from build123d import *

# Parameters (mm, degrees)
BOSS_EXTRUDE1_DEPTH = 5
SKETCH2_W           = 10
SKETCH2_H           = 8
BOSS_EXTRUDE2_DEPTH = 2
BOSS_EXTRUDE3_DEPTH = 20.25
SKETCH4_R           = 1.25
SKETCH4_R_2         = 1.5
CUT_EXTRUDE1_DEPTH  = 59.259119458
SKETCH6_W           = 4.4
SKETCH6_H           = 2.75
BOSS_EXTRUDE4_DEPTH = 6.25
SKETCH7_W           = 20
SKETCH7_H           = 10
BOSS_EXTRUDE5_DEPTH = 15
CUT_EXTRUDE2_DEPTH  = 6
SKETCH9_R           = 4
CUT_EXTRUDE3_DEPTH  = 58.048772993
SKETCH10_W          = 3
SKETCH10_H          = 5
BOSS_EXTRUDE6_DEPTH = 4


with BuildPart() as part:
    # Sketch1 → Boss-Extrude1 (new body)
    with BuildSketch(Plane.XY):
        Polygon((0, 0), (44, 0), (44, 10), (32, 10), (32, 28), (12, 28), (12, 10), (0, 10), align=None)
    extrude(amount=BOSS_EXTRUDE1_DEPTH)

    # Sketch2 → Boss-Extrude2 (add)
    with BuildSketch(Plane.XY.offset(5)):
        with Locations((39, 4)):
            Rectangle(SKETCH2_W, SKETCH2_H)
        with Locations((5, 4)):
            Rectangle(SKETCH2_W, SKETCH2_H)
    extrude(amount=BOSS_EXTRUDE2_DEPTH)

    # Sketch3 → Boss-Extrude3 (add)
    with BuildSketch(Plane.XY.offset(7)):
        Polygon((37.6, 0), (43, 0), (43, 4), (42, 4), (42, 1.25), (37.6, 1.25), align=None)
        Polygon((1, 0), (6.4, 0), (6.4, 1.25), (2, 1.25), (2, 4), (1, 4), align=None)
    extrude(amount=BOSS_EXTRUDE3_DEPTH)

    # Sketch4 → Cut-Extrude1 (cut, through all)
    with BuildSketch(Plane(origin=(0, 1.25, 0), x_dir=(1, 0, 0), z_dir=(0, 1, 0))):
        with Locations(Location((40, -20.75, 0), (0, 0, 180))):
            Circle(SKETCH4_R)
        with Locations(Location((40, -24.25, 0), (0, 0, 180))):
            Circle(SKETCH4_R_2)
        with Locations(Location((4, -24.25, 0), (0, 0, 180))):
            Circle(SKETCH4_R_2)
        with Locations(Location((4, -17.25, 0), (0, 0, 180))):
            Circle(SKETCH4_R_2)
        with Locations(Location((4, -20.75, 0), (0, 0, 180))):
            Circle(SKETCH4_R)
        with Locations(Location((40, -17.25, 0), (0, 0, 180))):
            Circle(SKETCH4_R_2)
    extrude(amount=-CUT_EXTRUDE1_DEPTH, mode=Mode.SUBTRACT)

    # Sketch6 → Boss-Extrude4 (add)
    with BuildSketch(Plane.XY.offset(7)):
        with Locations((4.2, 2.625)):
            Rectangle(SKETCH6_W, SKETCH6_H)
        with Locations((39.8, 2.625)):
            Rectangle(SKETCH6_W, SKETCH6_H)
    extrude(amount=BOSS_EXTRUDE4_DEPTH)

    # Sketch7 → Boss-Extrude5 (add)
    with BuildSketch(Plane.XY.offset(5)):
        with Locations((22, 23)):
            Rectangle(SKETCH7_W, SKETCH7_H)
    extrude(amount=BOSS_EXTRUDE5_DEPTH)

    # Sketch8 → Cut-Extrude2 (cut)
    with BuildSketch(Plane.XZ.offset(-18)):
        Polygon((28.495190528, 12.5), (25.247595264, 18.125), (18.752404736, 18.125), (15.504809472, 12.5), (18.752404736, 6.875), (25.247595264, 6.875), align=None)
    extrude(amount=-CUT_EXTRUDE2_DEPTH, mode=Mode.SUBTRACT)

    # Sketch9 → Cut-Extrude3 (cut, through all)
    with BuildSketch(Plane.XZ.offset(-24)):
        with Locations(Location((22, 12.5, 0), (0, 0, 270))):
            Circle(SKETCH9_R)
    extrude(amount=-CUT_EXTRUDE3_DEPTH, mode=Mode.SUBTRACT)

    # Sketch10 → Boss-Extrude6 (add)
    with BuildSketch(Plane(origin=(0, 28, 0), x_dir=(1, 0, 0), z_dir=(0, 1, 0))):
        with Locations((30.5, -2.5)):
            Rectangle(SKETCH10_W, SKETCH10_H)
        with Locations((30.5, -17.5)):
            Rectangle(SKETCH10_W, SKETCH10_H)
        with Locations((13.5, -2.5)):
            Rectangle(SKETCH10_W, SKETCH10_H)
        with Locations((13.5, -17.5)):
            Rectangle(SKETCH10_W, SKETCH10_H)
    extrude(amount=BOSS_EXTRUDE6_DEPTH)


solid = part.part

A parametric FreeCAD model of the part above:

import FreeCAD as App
import Part
import Sketcher
Q = App.Units.Quantity


def add_polygon(sketch, points):
    """Adds a closed chain of lines whose ends are joined by coincident constraints."""
    first, n = sketch.GeometryCount, len(points)
    for a, b in zip(points, points[1:] + points[:1]):
        sketch.addGeometry(Part.LineSegment(App.Vector(*a, 0), App.Vector(*b, 0)), False)
    for i in range(n):
        sketch.addConstraint(Sketcher.Constraint("Coincident", first + i, 2, first + (i + 1) % n, 1))

doc = App.newDocument("Part")
body = doc.addObject("PartDesign::Body", "Body")

# Sketch on XY plane
sketch1 = body.newObject("Sketcher::SketchObject", "Sketch")
sketch1.AttachmentSupport = (doc.getObject("XY_Plane"), [""])
sketch1.MapMode = "FlatFace"
add_polygon(sketch1, [(0, 0), (44, 0), (44, 10), (32, 10), (32, 28), (12, 28), (12, 10), (0, 10)])  # lines 0-7
sketch1.addConstraint(Sketcher.Constraint("Horizontal", 0))
sketch1.addConstraint(Sketcher.Constraint("Vertical", 1))
sketch1.addConstraint(Sketcher.Constraint("Horizontal", 2))
sketch1.addConstraint(Sketcher.Constraint("Vertical", 3))
sketch1.addConstraint(Sketcher.Constraint("Horizontal", 4))
sketch1.addConstraint(Sketcher.Constraint("Vertical", 5))
sketch1.addConstraint(Sketcher.Constraint("Horizontal", 6))
sketch1.addConstraint(Sketcher.Constraint("Vertical", 7))
sketch1.addConstraint(Sketcher.Constraint("Coincident", 7, 2, -1, 1))
sketch1.addConstraint(Sketcher.Constraint("Horizontal", 2, 2, 5, 2))
sketch1.addConstraint(Sketcher.Constraint("Equal", 2, 6))
sketch1.addConstraint(Sketcher.Constraint("DistanceX", 0, 1, 0, 2, 44.0))
sketch1.addConstraint(Sketcher.Constraint("DistanceX", 2, 2, 2, 1, 12.0))
sketch1.addConstraint(Sketcher.Constraint("DistanceY", 1, 1, 1, 2, 10.0))
sketch1.addConstraint(Sketcher.Constraint("DistanceY", 3, 1, 3, 2, 18.0))
pad1 = body.newObject("PartDesign::Pad", "Pad")
pad1.Profile = sketch1
pad1.Length = 5

# Sketch on XY plane
sketch2 = body.newObject("Sketcher::SketchObject", "Sketch001")
sketch2.AttachmentSupport = (doc.getObject("XY_Plane"), [""])
sketch2.MapMode = "FlatFace"
sketch2.AttachmentOffset = App.Placement(App.Vector(0, 0, 5), App.Rotation())
add_polygon(sketch2, [(34, 8), (34, 0), (44, 0), (44, 8)])  # lines 0-3
add_polygon(sketch2, [(0, 8), (0, 0), (10, 0), (10, 8)])  # lines 4-7
sketch2.addConstraint(Sketcher.Constraint("Vertical", 0))
sketch2.addConstraint(Sketcher.Constraint("Horizontal", 1))
sketch2.addConstraint(Sketcher.Constraint("Vertical", 2))
sketch2.addConstraint(Sketcher.Constraint("Horizontal", 3))
sketch2.addConstraint(Sketcher.Constraint("Vertical", 4))
sketch2.addConstraint(Sketcher.Constraint("Horizontal", 5))
sketch2.addConstraint(Sketcher.Constraint("Vertical", 6))
sketch2.addConstraint(Sketcher.Constraint("Horizontal", 7))
sketch2.addConstraint(Sketcher.Constraint("Coincident", 4, 2, -1, 1))
sketch2.addConstraint(Sketcher.Constraint("PointOnObject", 0, 2, -1))
sketch2.addConstraint(Sketcher.Constraint("Horizontal", 3, 2, 6, 2))
sketch2.addConstraint(Sketcher.Constraint("Equal", 3, 5))
sketch2.addConstraint(Sketcher.Constraint("DistanceX", 1, 1, 1, 2, 10.0))
sketch2.addConstraint(Sketcher.Constraint("DistanceY", 0, 2, 0, 1, 8.0))
sketch2.addConstraint(Sketcher.Constraint("DistanceX", -1, 1, 0, 2, 34.0))
pad2 = body.newObject("PartDesign::Pad", "Pad001")
pad2.Profile = sketch2
pad2.Length = 2

# Sketch on XY plane
sketch3 = body.newObject("Sketcher::SketchObject", "Sketch002")
sketch3.AttachmentSupport = (doc.getObject("XY_Plane"), [""])
sketch3.MapMode = "FlatFace"
sketch3.AttachmentOffset = App.Placement(App.Vector(0, 0, 7), App.Rotation())
add_polygon(sketch3, [(37.6, 0), (43, 0), (43, 4), (42, 4), (42, 1.2), (37.6, 1.2)])  # lines 0-5
add_polygon(sketch3, [(1, 0), (6.4, 0), (6.4, 1.2), (2, 1.2), (2, 4), (1, 4)])  # lines 6-11
sketch3.addConstraint(Sketcher.Constraint("Horizontal", 0))
sketch3.addConstraint(Sketcher.Constraint("Vertical", 1))
sketch3.addConstraint(Sketcher.Constraint("Horizontal", 2))
sketch3.addConstraint(Sketcher.Constraint("Vertical", 3))
sketch3.addConstraint(Sketcher.Constraint("Horizontal", 4))
sketch3.addConstraint(Sketcher.Constraint("Vertical", 5))
sketch3.addConstraint(Sketcher.Constraint("Horizontal", 6))
sketch3.addConstraint(Sketcher.Constraint("Vertical", 7))
sketch3.addConstraint(Sketcher.Constraint("Horizontal", 8))
sketch3.addConstraint(Sketcher.Constraint("Vertical", 9))
sketch3.addConstraint(Sketcher.Constraint("Horizontal", 10))
sketch3.addConstraint(Sketcher.Constraint("Vertical", 11))
sketch3.addConstraint(Sketcher.Constraint("PointOnObject", 0, 2, -1))
sketch3.addConstraint(Sketcher.Constraint("PointOnObject", 6, 2, -1))
sketch3.addConstraint(Sketcher.Constraint("Horizontal", 4, 2, 7, 2))
sketch3.addConstraint(Sketcher.Constraint("Horizontal", 2, 2, 9, 2))
sketch3.addConstraint(Sketcher.Constraint("Equal", 0, 6))
sketch3.addConstraint(Sketcher.Constraint("Equal", 4, 8))
sketch3.addConstraint(Sketcher.Constraint("DistanceX", 2, 2, 2, 1, 1.0))
sketch3.addConstraint(Sketcher.Constraint("DistanceY", 1, 1, 1, 2, 4.0))
sketch3.addConstraint(Sketcher.Constraint("DistanceX", 0, 1, 0, 2, 5.4))
sketch3.addConstraint(Sketcher.Constraint("DistanceX", -1, 1, 0, 2, 43.0))
sketch3.addConstraint(Sketcher.Constraint("DistanceX", -1, 1, 8, 2, 2.0))
sketch3.addConstraint(Sketcher.Constraint("DistanceY", 3, 2, 3, 1, 2.75))
pad3 = body.newObject("PartDesign::Pad", "Pad002")
pad3.Profile = sketch3
pad3.Length = 20.25

# Sketch on XZ plane
sketch4 = body.newObject("Sketcher::SketchObject", "Sketch003")
sketch4.AttachmentSupport = (doc.getObject("XZ_Plane"), [""])
sketch4.MapMode = "FlatFace"
sketch4.AttachmentOffset = App.Placement(App.Vector(0, 0, -1.25), App.Rotation())
sketch4.addGeometry(Part.Circle(App.Vector(40, 20.8, 0), App.Vector(0, 0, 1), 1.2), False)
sketch4.addGeometry(Part.Circle(App.Vector(40, 24.2, 0), App.Vector(0, 0, 1), 1.5), False)
sketch4.addGeometry(Part.Circle(App.Vector(4, 24.2, 0), App.Vector(0, 0, 1), 1.5), False)
sketch4.addGeometry(Part.Circle(App.Vector(4, 17.2, 0), App.Vector(0, 0, 1), 1.5), False)
sketch4.addGeometry(Part.Circle(App.Vector(4, 20.8, 0), App.Vector(0, 0, 1), 1.2), False)
sketch4.addGeometry(Part.Circle(App.Vector(40, 17.2, 0), App.Vector(0, 0, 1), 1.5), False)
sketch4.addConstraint(Sketcher.Constraint("Equal", 1, 2))
sketch4.addConstraint(Sketcher.Constraint("Equal", 2, 3))
sketch4.addConstraint(Sketcher.Constraint("Equal", 0, 4))
sketch4.addConstraint(Sketcher.Constraint("Equal", 3, 5))
sketch4.addConstraint(Sketcher.Constraint("Horizontal", 1, 3, 2, 3))
sketch4.addConstraint(Sketcher.Constraint("Horizontal", 0, 3, 4, 3))
sketch4.addConstraint(Sketcher.Constraint("Horizontal", 3, 3, 5, 3))
sketch4.addConstraint(Sketcher.Constraint("Vertical", 0, 3, 1, 3))
sketch4.addConstraint(Sketcher.Constraint("Vertical", 2, 3, 3, 3))
sketch4.addConstraint(Sketcher.Constraint("Vertical", 3, 3, 4, 3))
sketch4.addConstraint(Sketcher.Constraint("Vertical", 1, 3, 5, 3))
sketch4.addConstraint(Sketcher.Constraint("Diameter", 1, 3.0))
sketch4.addConstraint(Sketcher.Constraint("Diameter", 0, 2.5))
sketch4.addConstraint(Sketcher.Constraint("DistanceX", -1, 1, 0, 3, 40.0))
sketch4.addConstraint(Sketcher.Constraint("DistanceX", -1, 1, 2, 3, 4.0))
sketch4.addConstraint(Sketcher.Constraint("DistanceY", 3, 3, 2, 3, 7.0))
sketch4.addConstraint(Sketcher.Constraint("DistanceY", 0, 3, 1, 3, 3.5))
sketch4.addConstraint(Sketcher.Constraint("DistanceY", -1, 1, 0, 3, 20.75))
pocket1 = body.newObject("PartDesign::Pocket", "Pocket")
pocket1.Profile = sketch4
pocket1.Type = "ThroughAll"
pocket1.Reversed = True

# Sketch on XY plane
sketch5 = body.newObject("Sketcher::SketchObject", "Sketch004")
sketch5.AttachmentSupport = (doc.getObject("XY_Plane"), [""])
sketch5.MapMode = "FlatFace"
sketch5.AttachmentOffset = App.Placement(App.Vector(0, 0, 7), App.Rotation())
add_polygon(sketch5, [(2, 4), (2, 1.2), (6.4, 1.2), (6.4, 4)])  # lines 0-3
add_polygon(sketch5, [(37.6, 4), (37.6, 1.2), (42, 1.2), (42, 4)])  # lines 4-7
sketch5.addConstraint(Sketcher.Constraint("Vertical", 0))
sketch5.addConstraint(Sketcher.Constraint("Horizontal", 1))
sketch5.addConstraint(Sketcher.Constraint("Vertical", 2))
sketch5.addConstraint(Sketcher.Constraint("Horizontal", 3))
sketch5.addConstraint(Sketcher.Constraint("Vertical", 4))
sketch5.addConstraint(Sketcher.Constraint("Horizontal", 5))
sketch5.addConstraint(Sketcher.Constraint("Vertical", 6))
sketch5.addConstraint(Sketcher.Constraint("Horizontal", 7))
sketch5.addConstraint(Sketcher.Constraint("Horizontal", 1, 2, 4, 2))
sketch5.addConstraint(Sketcher.Constraint("Horizontal", 3, 2, 6, 2))
sketch5.addConstraint(Sketcher.Constraint("Equal", 3, 5))
sketch5.addConstraint(Sketcher.Constraint("DistanceX", 1, 1, 1, 2, 4.4))
sketch5.addConstraint(Sketcher.Constraint("DistanceX", -1, 1, 0, 2, 2.0))
sketch5.addConstraint(Sketcher.Constraint("DistanceY", -1, 1, 2, 2, 4.0))
sketch5.addConstraint(Sketcher.Constraint("DistanceX", -1, 1, 5, 2, 42.0))
sketch5.addConstraint(Sketcher.Constraint("DistanceY", 0, 2, 0, 1, 2.75))
pad4 = body.newObject("PartDesign::Pad", "Pad003")
pad4.Profile = sketch5
pad4.Length = 6.25

# Sketch on XY plane
sketch6 = body.newObject("Sketcher::SketchObject", "Sketch005")
sketch6.AttachmentSupport = (doc.getObject("XY_Plane"), [""])
sketch6.MapMode = "FlatFace"
sketch6.AttachmentOffset = App.Placement(App.Vector(0, 0, 5), App.Rotation())
add_polygon(sketch6, [(12, 28), (12, 18), (32, 18), (32, 28)])  # lines 0-3
sketch6.addConstraint(Sketcher.Constraint("Vertical", 0))
sketch6.addConstraint(Sketcher.Constraint("Horizontal", 1))
sketch6.addConstraint(Sketcher.Constraint("Vertical", 2))
sketch6.addConstraint(Sketcher.Constraint("Horizontal", 3))
sketch6.addConstraint(Sketcher.Constraint("DistanceX", 1, 1, 1, 2, 20.0))
sketch6.addConstraint(Sketcher.Constraint("DistanceY", 0, 2, 0, 1, 10.0))
sketch6.addConstraint(Sketcher.Constraint("DistanceX", -1, 1, 0, 2, 12.0))
sketch6.addConstraint(Sketcher.Constraint("DistanceY", -1, 1, 0, 2, 18.0))
pad5 = body.newObject("PartDesign::Pad", "Pad004")
pad5.Profile = sketch6
pad5.Length = 15

# Sketch on XZ plane
sketch7 = body.newObject("Sketcher::SketchObject", "Sketch006")
sketch7.AttachmentSupport = (doc.getObject("XZ_Plane"), [""])
sketch7.MapMode = "FlatFace"
sketch7.AttachmentOffset = App.Placement(App.Vector(0, 0, -18), App.Rotation())
add_polygon(sketch7, [(28, 12), (25, 18), (19, 18), (16, 12), (19, 7), (25, 7)])  # lines 0-5
sketch7.addConstraint(Sketcher.Constraint("Horizontal", 1))
sketch7.addConstraint(Sketcher.Constraint("Horizontal", 4))
sketch7.addConstraint(Sketcher.Constraint("Parallel", 0, 3))
sketch7.addConstraint(Sketcher.Constraint("Parallel", 2, 5))
sketch7.addConstraint(Sketcher.Constraint("Horizontal", 2, 2, 5, 2))
sketch7.addConstraint(Sketcher.Constraint("Vertical", 1, 2, 3, 2))
sketch7.addConstraint(Sketcher.Constraint("Vertical", 0, 2, 4, 2))
sketch7.addConstraint(Sketcher.Constraint("Angle", 0, Q("120 deg")))
sketch7.addConstraint(Sketcher.Constraint("DistanceY", -1, 1, 2, 2, 12.5))
sketch7.addConstraint(Sketcher.Constraint("DistanceY", 3, 2, 1, 2, 11.25))
sketch7.addConstraint(Sketcher.Constraint("DistanceX", 1, 2, 1, 1, 6.495191))
sketch7.addConstraint(Sketcher.Constraint("DistanceX", -1, 1, 2, 2, 15.504809))
pocket2 = body.newObject("PartDesign::Pocket", "Pocket001")
pocket2.Profile = sketch7
pocket2.Length = 6

# Sketch on XZ plane
sketch8 = body.newObject("Sketcher::SketchObject", "Sketch007")
sketch8.AttachmentSupport = (doc.getObject("XZ_Plane"), [""])
sketch8.MapMode = "FlatFace"
sketch8.AttachmentOffset = App.Placement(App.Vector(0, 0, -24), App.Rotation())
sketch8.addGeometry(Part.Circle(App.Vector(22, 12.5, 0), App.Vector(0, 0, 1), 4), False)
sketch8.addConstraint(Sketcher.Constraint("Diameter", 0, 8.0))
sketch8.addConstraint(Sketcher.Constraint("DistanceX", -1, 1, 0, 3, 22.0))
sketch8.addConstraint(Sketcher.Constraint("DistanceY", -1, 1, 0, 3, 12.5))
pocket3 = body.newObject("PartDesign::Pocket", "Pocket002")
pocket3.Profile = sketch8
pocket3.Type = "ThroughAll"

# Sketch on XZ plane
sketch9 = body.newObject("Sketcher::SketchObject", "Sketch008")
sketch9.AttachmentSupport = (doc.getObject("XZ_Plane"), [""])
sketch9.MapMode = "FlatFace"
sketch9.AttachmentOffset = App.Placement(App.Vector(0, 0, -28), App.Rotation())
add_polygon(sketch9, [(29, 0), (29, 5), (32, 5), (32, 0)])  # lines 0-3
add_polygon(sketch9, [(29, 15), (29, 20), (32, 20), (32, 15)])  # lines 4-7
add_polygon(sketch9, [(12, 0), (12, 5), (15, 5), (15, 0)])  # lines 8-11
add_polygon(sketch9, [(12, 15), (12, 20), (15, 20), (15, 15)])  # lines 12-15
sketch9.addConstraint(Sketcher.Constraint("Vertical", 0))
sketch9.addConstraint(Sketcher.Constraint("Horizontal", 1))
sketch9.addConstraint(Sketcher.Constraint("Vertical", 2))
sketch9.addConstraint(Sketcher.Constraint("Horizontal", 3))
sketch9.addConstraint(Sketcher.Constraint("Vertical", 4))
sketch9.addConstraint(Sketcher.Constraint("Horizontal", 5))
sketch9.addConstraint(Sketcher.Constraint("Vertical", 6))
sketch9.addConstraint(Sketcher.Constraint("Horizontal", 7))
sketch9.addConstraint(Sketcher.Constraint("Vertical", 8))
sketch9.addConstraint(Sketcher.Constraint("Horizontal", 9))
sketch9.addConstraint(Sketcher.Constraint("Vertical", 10))
sketch9.addConstraint(Sketcher.Constraint("Horizontal", 11))
sketch9.addConstraint(Sketcher.Constraint("Vertical", 12))
sketch9.addConstraint(Sketcher.Constraint("Horizontal", 13))
sketch9.addConstraint(Sketcher.Constraint("Vertical", 14))
sketch9.addConstraint(Sketcher.Constraint("Horizontal", 15))
sketch9.addConstraint(Sketcher.Constraint("PointOnObject", 2, 2, -1))
sketch9.addConstraint(Sketcher.Constraint("PointOnObject", 10, 2, -1))
sketch9.addConstraint(Sketcher.Constraint("Horizontal", 1, 2, 8, 2))
sketch9.addConstraint(Sketcher.Constraint("Horizontal", 5, 2, 12, 2))
sketch9.addConstraint(Sketcher.Constraint("Horizontal", 7, 2, 14, 2))
sketch9.addConstraint(Sketcher.Constraint("Vertical", 3, 2, 4, 2))
sketch9.addConstraint(Sketcher.Constraint("Vertical", 2, 2, 5, 2))
sketch9.addConstraint(Sketcher.Constraint("Vertical", 11, 2, 12, 2))
sketch9.addConstraint(Sketcher.Constraint("Vertical", 10, 2, 13, 2))
sketch9.addConstraint(Sketcher.Constraint("Equal", 7, 9))
sketch9.addConstraint(Sketcher.Constraint("Equal", 2, 4))
sketch9.addConstraint(Sketcher.Constraint("DistanceX", 1, 1, 1, 2, 3.0))
sketch9.addConstraint(Sketcher.Constraint("DistanceY", 0, 1, 0, 2, 5.0))
sketch9.addConstraint(Sketcher.Constraint("DistanceX", -1, 1, 0, 2, 29.0))
sketch9.addConstraint(Sketcher.Constraint("DistanceY", -1, 1, 4, 2, 20.0))
sketch9.addConstraint(Sketcher.Constraint("DistanceX", -1, 1, 8, 2, 12.0))
pad6 = body.newObject("PartDesign::Pad", "Pad005")
pad6.Profile = sketch9
pad6.Length = 4
pad6.Reversed = True

doc.recompute()
